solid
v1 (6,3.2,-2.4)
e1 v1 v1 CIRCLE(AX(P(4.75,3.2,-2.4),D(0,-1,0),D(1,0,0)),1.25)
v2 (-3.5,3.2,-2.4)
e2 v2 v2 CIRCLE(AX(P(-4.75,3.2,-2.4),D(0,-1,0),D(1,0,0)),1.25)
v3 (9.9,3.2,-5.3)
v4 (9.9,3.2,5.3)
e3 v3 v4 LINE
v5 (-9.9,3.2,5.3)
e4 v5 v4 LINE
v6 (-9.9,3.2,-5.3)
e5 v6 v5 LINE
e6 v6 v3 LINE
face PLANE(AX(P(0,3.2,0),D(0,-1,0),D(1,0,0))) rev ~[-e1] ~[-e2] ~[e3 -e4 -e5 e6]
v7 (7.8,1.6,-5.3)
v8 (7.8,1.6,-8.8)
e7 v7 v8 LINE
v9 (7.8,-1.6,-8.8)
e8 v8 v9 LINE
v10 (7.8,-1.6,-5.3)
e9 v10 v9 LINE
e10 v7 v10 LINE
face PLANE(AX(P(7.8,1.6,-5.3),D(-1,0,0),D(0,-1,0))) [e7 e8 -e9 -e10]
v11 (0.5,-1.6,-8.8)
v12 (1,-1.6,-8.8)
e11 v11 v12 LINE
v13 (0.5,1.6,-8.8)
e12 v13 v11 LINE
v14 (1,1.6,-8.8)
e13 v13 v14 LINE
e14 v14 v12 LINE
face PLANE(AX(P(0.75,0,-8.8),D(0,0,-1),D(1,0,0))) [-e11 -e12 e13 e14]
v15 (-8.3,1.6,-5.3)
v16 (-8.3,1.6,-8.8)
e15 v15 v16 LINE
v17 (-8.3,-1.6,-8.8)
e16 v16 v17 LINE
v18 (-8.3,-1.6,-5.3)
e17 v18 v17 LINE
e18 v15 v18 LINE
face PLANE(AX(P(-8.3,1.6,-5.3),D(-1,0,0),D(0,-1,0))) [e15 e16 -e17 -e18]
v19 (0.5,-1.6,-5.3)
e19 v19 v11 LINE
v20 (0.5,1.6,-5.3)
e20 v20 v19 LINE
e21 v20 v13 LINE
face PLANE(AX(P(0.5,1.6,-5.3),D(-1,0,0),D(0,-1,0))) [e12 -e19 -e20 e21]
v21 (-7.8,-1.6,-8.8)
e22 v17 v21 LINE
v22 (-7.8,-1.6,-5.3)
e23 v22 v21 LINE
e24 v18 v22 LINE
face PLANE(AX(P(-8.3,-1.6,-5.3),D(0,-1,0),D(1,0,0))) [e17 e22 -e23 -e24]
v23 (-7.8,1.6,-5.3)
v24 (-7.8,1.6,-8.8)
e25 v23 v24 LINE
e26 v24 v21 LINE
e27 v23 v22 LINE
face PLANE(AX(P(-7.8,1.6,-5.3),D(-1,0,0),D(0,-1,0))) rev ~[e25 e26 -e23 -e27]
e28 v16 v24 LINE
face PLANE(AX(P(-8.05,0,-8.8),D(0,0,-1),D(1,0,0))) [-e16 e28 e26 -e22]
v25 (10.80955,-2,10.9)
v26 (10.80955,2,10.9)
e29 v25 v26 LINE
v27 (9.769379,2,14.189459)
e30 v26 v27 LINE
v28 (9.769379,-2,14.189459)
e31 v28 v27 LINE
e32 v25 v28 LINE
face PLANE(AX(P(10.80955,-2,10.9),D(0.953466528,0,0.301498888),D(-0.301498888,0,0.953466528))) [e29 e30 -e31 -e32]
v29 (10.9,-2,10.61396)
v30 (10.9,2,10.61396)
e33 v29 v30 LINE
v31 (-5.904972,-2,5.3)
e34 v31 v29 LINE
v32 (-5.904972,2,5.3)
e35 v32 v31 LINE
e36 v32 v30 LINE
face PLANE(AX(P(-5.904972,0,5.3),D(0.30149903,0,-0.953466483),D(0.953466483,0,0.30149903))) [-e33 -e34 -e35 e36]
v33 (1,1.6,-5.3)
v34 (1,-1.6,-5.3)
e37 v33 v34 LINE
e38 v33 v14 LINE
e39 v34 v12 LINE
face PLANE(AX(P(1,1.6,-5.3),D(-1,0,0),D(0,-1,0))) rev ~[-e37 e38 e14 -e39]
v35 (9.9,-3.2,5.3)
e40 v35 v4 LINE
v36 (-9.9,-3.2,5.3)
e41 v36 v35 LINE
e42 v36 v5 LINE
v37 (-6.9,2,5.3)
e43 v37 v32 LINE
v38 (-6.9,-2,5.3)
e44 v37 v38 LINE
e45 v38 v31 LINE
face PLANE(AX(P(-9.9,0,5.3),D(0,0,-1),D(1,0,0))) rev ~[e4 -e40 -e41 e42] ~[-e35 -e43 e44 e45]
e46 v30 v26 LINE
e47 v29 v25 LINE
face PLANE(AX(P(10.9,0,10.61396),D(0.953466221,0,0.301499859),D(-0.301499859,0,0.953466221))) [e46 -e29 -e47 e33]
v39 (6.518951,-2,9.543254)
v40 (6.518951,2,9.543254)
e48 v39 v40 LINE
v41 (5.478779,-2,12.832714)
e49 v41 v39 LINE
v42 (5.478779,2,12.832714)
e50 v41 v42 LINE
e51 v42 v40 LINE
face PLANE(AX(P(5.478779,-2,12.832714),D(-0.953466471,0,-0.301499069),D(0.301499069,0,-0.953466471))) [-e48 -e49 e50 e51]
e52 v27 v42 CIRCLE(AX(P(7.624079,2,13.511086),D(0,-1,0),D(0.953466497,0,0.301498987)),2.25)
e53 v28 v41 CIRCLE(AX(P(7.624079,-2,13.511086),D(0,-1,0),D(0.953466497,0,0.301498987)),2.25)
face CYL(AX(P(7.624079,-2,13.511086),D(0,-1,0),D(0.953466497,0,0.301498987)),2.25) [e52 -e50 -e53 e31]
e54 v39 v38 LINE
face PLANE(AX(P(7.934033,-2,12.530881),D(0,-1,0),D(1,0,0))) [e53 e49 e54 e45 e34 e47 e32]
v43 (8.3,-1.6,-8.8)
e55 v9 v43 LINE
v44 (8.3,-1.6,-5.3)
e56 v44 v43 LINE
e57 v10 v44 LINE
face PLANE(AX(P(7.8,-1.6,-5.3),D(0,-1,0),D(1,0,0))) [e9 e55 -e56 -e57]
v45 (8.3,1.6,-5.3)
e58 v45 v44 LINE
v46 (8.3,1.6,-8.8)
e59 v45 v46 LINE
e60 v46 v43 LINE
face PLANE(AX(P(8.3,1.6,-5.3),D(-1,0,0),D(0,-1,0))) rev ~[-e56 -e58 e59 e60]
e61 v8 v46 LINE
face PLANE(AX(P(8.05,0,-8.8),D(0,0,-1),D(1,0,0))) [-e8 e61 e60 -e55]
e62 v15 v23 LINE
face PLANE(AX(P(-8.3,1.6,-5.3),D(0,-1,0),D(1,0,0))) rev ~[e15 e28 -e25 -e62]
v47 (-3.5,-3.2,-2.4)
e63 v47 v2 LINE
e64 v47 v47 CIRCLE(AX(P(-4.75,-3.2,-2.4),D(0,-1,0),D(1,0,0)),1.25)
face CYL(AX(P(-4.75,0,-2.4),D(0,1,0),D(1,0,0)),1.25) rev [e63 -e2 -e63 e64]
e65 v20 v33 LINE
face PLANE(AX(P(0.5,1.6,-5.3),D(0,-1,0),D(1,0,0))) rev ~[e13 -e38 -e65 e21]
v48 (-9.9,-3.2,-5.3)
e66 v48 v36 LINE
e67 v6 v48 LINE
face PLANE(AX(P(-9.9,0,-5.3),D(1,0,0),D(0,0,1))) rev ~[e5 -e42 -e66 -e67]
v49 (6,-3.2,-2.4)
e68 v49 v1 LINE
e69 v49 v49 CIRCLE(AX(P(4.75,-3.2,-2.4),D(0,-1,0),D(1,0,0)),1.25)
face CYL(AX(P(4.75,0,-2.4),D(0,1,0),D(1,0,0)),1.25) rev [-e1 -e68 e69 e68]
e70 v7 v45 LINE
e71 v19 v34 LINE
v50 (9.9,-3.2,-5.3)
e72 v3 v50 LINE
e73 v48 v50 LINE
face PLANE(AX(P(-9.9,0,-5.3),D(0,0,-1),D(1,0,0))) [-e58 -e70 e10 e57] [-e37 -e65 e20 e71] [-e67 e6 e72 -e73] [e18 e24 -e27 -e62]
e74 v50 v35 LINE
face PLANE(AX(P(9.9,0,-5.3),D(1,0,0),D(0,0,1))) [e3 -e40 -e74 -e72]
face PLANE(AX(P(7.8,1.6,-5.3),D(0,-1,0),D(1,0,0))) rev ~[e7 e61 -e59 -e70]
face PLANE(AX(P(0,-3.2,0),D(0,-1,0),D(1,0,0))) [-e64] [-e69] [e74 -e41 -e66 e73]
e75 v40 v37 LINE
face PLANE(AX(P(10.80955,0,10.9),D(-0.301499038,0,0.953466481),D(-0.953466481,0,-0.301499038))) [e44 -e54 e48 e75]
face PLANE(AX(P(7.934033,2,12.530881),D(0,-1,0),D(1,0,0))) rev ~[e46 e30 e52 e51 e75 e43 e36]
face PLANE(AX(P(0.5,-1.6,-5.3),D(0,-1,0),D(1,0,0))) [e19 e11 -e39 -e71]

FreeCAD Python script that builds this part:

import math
import FreeCAD as App
import Part
import Sketcher

doc = App.newDocument("Part")
params = doc.addObject("Spreadsheet::Sheet", "Params")
for row, (alias, value) in enumerate([
    ("sketch1_diameter", "2.5 mm"),
    ("sketch1_width", "19.8 mm"),
    ("sketch1_height", "10.6 mm"),
    ("pad1_length", "6.4 mm"),
    ("sketch2_width", "0.5 mm"),
    ("sketch2_height", "3.2 mm"),
    ("pad2_length", "3.5 mm"),
    ("sketch3_length", "0.3 mm"),
    ("pad3_length", "4 mm"),
    ("sketch4_radius", "2.25 mm"),
    ("sketch4_length", "3.449999 mm"),
    ("pad4_length", "4 mm"),
], start=1):
    params.set(f"A{row}", alias)
    params.set(f"B{row}", "=" + value)
    params.setAlias(f"B{row}", alias)

body = doc.addObject("PartDesign::Body", "Body")

# Sketch on XZ plane
sketch1 = body.newObject("Sketcher::SketchObject", "Sketch")
sketch1.AttachmentSupport = (doc.getObject("XZ_Plane"), [""])
sketch1.MapMode = "FlatFace"
sketch1.addGeometry(Part.LineSegment(App.Vector(-9.9, 5.3, 0), App.Vector(-9.9, -5.3, 0)), False)
sketch1.addGeometry(Part.LineSegment(App.Vector(-9.9, -5.3, 0), App.Vector(9.9, -5.3, 0)), False)
sketch1.addGeometry(Part.LineSegment(App.Vector(9.9, -5.3, 0), App.Vector(9.9, 5.3, 0)), False)
sketch1.addGeometry(Part.LineSegment(App.Vector(9.9, 5.3, 0), App.Vector(-9.9, 5.3, 0)), False)
sketch1.addGeometry(Part.Circle(App.Vector(-4.8, -2.4, 0), App.Vector(0, 0, 1), 1.2), False)
sketch1.addGeometry(Part.Circle(App.Vector(4.8, -2.4, 0), App.Vector(0, 0, 1), 1.2), False)
sketch1.addConstraint(Sketcher.Constraint("Coincident", 0, 2, 1, 1))
sketch1.addConstraint(Sketcher.Constraint("Coincident", 1, 2, 2, 1))
sketch1.addConstraint(Sketcher.Constraint("Coincident", 2, 2, 3, 1))
sketch1.addConstraint(Sketcher.Constraint("Coincident", 3, 2, 0, 1))
sketch1.addConstraint(Sketcher.Constraint("Vertical", 0))
sketch1.addConstraint(Sketcher.Constraint("Horizontal", 1))
sketch1.addConstraint(Sketcher.Constraint("Vertical", 2))
sketch1.addConstraint(Sketcher.Constraint("Horizontal", 3))
sketch1.addConstraint(Sketcher.Constraint("Equal", 4, 5))
sketch1.addConstraint(Sketcher.Constraint("Symmetric", 0, 2, 2, 2, -1, 1))
sketch1.addConstraint(Sketcher.Constraint("Symmetric", 4, 3, 5, 3, -2))
sketch1.addConstraint(Sketcher.Constraint("Diameter", 4, 2.5))
sketch1.addConstraint(Sketcher.Constraint("DistanceX", 1, 1, 1, 2, 19.8))
sketch1.addConstraint(Sketcher.Constraint("DistanceY", 0, 2, 0, 1, 10.6))
sketch1.addConstraint(Sketcher.Constraint("DistanceY", 4, 3, -1, 1, 2.4))
sketch1.addConstraint(Sketcher.Constraint("DistanceX", 4, 3, 5, 3, 9.5))
sketch1.setExpression("Constraints[11]", "Params.sketch1_diameter")
sketch1.setExpression("Constraints[12]", "Params.sketch1_width")
sketch1.setExpression("Constraints[13]", "Params.sketch1_height")
pad1 = body.newObject("PartDesign::Pad", "Pad")
pad1.Profile = sketch1
pad1.setExpression("Length", "Params.pad1_length")
pad1.Midplane = True

# Sketch on XY plane
sketch2 = body.newObject("Sketcher::SketchObject", "Sketch001")
sketch2.AttachmentSupport = (doc.getObject("XY_Plane"), [""])
sketch2.MapMode = "FlatFace"
sketch2.AttachmentOffset = App.Placement(App.Vector(0, 0, -5.3), App.Rotation())
sketch2.addGeometry(Part.LineSegment(App.Vector(-8.3, -1.6, 0), App.Vector(-8.3, 1.6, 0)), False)
sketch2.addGeometry(Part.LineSegment(App.Vector(-8.3, 1.6, 0), App.Vector(-7.8, 1.6, 0)), False)
sketch2.addGeometry(Part.LineSegment(App.Vector(-7.8, 1.6, 0), App.Vector(-7.8, -1.6, 0)), False)
sketch2.addGeometry(Part.LineSegment(App.Vector(-7.8, -1.6, 0), App.Vector(-8.3, -1.6, 0)), False)
sketch2.addGeometry(Part.LineSegment(App.Vector(0.5, -1.6, 0), App.Vector(0.5, 1.6, 0)), False)
sketch2.addGeometry(Part.LineSegment(App.Vector(0.5, 1.6, 0), App.Vector(1, 1.6, 0)), False)
sketch2.addGeometry(Part.LineSegment(App.Vector(1, 1.6, 0), App.Vector(1, -1.6, 0)), False)
sketch2.addGeometry(Part.LineSegment(App.Vector(1, -1.6, 0), App.Vector(0.5, -1.6, 0)), False)
sketch2.addGeometry(Part.LineSegment(App.Vector(7.8, -1.6, 0), App.Vector(7.8, 1.6, 0)), False)
sketch2.addGeometry(Part.LineSegment(App.Vector(7.8, 1.6, 0), App.Vector(8.3, 1.6, 0)), False)
sketch2.addGeometry(Part.LineSegment(App.Vector(8.3, 1.6, 0), App.Vector(8.3, -1.6, 0)), False)
sketch2.addGeometry(Part.LineSegment(App.Vector(8.3, -1.6, 0), App.Vector(7.8, -1.6, 0)), False)
sketch2.addConstraint(Sketcher.Constraint("Coincident", 0, 2, 1, 1))
sketch2.addConstraint(Sketcher.Constraint("Coincident", 1, 2, 2, 1))
sketch2.addConstraint(Sketcher.Constraint("Coincident", 2, 2, 3, 1))
sketch2.addConstraint(Sketcher.Constraint("Coincident", 3, 2, 0, 1))
sketch2.addConstraint(Sketcher.Constraint("Coincident", 4, 2, 5, 1))
sketch2.addConstraint(Sketcher.Constraint("Coincident", 5, 2, 6, 1))
sketch2.addConstraint(Sketcher.Constraint("Coincident", 6, 2, 7, 1))
sketch2.addConstraint(Sketcher.Constraint("Coincident", 7, 2, 4, 1))
sketch2.addConstraint(Sketcher.Constraint("Coincident", 8, 2, 9, 1))
sketch2.addConstraint(Sketcher.Constraint("Coincident", 9, 2, 10, 1))
sketch2.addConstraint(Sketcher.Constraint("Coincident", 10, 2, 11, 1))
sketch2.addConstraint(Sketcher.Constraint("Coincident", 11, 2, 8, 1))
sketch2.addConstraint(Sketcher.Constraint("Vertical", 0))
sketch2.addConstraint(Sketcher.Constraint("Horizontal", 1))
sketch2.addConstraint(Sketcher.Constraint("Vertical", 2))
sketch2.addConstraint(Sketcher.Constraint("Horizontal", 3))
sketch2.addConstraint(Sketcher.Constraint("Vertical", 4))
sketch2.addConstraint(Sketcher.Constraint("Horizontal", 5))
sketch2.addConstraint(Sketcher.Constraint("Vertical", 6))
sketch2.addConstraint(Sketcher.Constraint("Horizontal", 7))
sketch2.addConstraint(Sketcher.Constraint("Vertical", 8))
sketch2.addConstraint(Sketcher.Constraint("Horizontal", 9))
sketch2.addConstraint(Sketcher.Constraint("Vertical", 10))
sketch2.addConstraint(Sketcher.Constraint("Horizontal", 11))
sketch2.addConstraint(Sketcher.Constraint("Symmetric", 2, 2, 8, 2, -1, 1))
sketch2.addConstraint(Sketcher.Constraint("Symmetric", 0, 2, 10, 2, -1, 1))
sketch2.addConstraint(Sketcher.Constraint("Horizontal", 1, 2, 4, 2))
sketch2.addConstraint(Sketcher.Constraint("Horizontal", 3, 2, 6, 2))
sketch2.addConstraint(Sketcher.Constraint("Horizontal", 5, 2, 8, 2))
sketch2.addConstraint(Sketcher.Constraint("Equal", 3, 5))
sketch2.addConstraint(Sketcher.Constraint("DistanceX", 1, 1, 1, 2, 0.5))
sketch2.addConstraint(Sketcher.Constraint("DistanceY", 0, 1, 0, 2, 3.2))
sketch2.addConstraint(Sketcher.Constraint("DistanceX", -1, 1, 5, 2, 1.0))
sketch2.addConstraint(Sketcher.Constraint("DistanceX", 0, 2, -1, 1, 8.3))
sketch2.setExpression("Constraints[30]", "Params.sketch2_width")
sketch2.setExpression("Constraints[31]", "Params.sketch2_height")
pad2 = body.newObject("PartDesign::Pad", "Pad001")
pad2.Profile = sketch2
pad2.setExpression("Length", "Params.pad2_length")
pad2.Reversed = True

# Sketch on XZ plane
sketch3 = body.newObject("Sketcher::SketchObject", "Sketch002")
sketch3.AttachmentSupport = (doc.getObject("XZ_Plane"), [""])
sketch3.MapMode = "FlatFace"
sketch3.addGeometry(Part.LineSegment(App.Vector(10.81, 10.9, 0), App.Vector(-6.9, 5.3, 0)), False)
sketch3.addGeometry(Part.LineSegment(App.Vector(-6.9, 5.3, 0), App.Vector(-5.9, 5.3, 0)), False)
sketch3.addGeometry(Part.LineSegment(App.Vector(-5.9, 5.3, 0), App.Vector(10.9, 10.61, 0)), False)
sketch3.addGeometry(Part.LineSegment(App.Vector(10.9, 10.61, 0), App.Vector(10.81, 10.9, 0)), False)
sketch3.addConstraint(Sketcher.Constraint("Coincident", 0, 2, 1, 1))
sketch3.addConstraint(Sketcher.Constraint("Coincident", 1, 2, 2, 1))
sketch3.addConstraint(Sketcher.Constraint("Coincident", 2, 2, 3, 1))
sketch3.addConstraint(Sketcher.Constraint("Coincident", 3, 2, 0, 1))
sketch3.addConstraint(Sketcher.Constraint("Horizontal", 1))
sketch3.addConstraint(Sketcher.Constraint("Parallel", 0, 2))
sketch3.addConstraint(Sketcher.Constraint("Perpendicular", 2, 3))
sketch3.addConstraint(Sketcher.Constraint("Distance", 3, 0.3))
sketch3.addConstraint(Sketcher.Constraint("DistanceX", 0, 2, -1, 1, 6.9))
sketch3.addConstraint(Sketcher.Constraint("DistanceY", -1, 1, 0, 2, 5.3))
sketch3.addConstraint(Sketcher.Constraint("DistanceX", -1, 1, 2, 2, 10.9))
sketch3.addConstraint(Sketcher.Constraint("DistanceY", -1, 1, 3, 2, 10.9))
sketch3.setExpression("Constraints[7]", "Params.sketch3_length")
pad3 = body.newObject("PartDesign::Pad", "Pad002")
pad3.Profile = sketch3
pad3.setExpression("Length", "Params.pad3_length")
pad3.Midplane = True

# Sketch on XZ plane
sketch4 = body.newObject("Sketcher::SketchObject", "Sketch003")
sketch4.AttachmentSupport = (doc.getObject("XZ_Plane"), [""])
sketch4.MapMode = "FlatFace"
sketch4.AttachmentOffset = App.Placement(App.Vector(0, 0, 2), App.Rotation())
sketch4.addGeometry(Part.LineSegment(App.Vector(6.5, 9.5, 0), App.Vector(10.8, 10.9, 0)), False)
sketch4.addGeometry(Part.LineSegment(App.Vector(10.8, 10.9, 0), App.Vector(9.8, 14.2, 0)), False)
sketch4.addGeometry(Part.ArcOfCircle(Part.Circle(App.Vector(7.6, 13.5, 0), App.Vector(0, 0, 1), 2.3), math.radians(18), math.radians(198)), False)
sketch4.addGeometry(Part.LineSegment(App.Vector(5.5, 12.8, 0), App.Vector(6.5, 9.5, 0)), False)
sketch4.addConstraint(Sketcher.Constraint("Coincident", 0, 2, 1, 1))
sketch4.addConstraint(Sketcher.Constraint("Tangent", 1, 2, 2, 1))
sketch4.addConstraint(Sketcher.Constraint("Tangent", 2, 2, 3, 1))
sketch4.addConstraint(Sketcher.Constraint("Coincident", 3, 2, 0, 1))
sketch4.addConstraint(Sketcher.Constraint("Perpendicular", 0, 1))
sketch4.addConstraint(Sketcher.Constraint("Parallel", 1, 3))
sketch4.addConstraint(Sketcher.Constraint("Radius", 2, 2.25))
sketch4.addConstraint(Sketcher.Constraint("DistanceY", -1, 1, 0, 2, 10.9))
sketch4.addConstraint(Sketcher.Constraint("Distance", 1, 3.449999))
sketch4.addConstraint(Sketcher.Constraint("DistanceX", 2, 3, 1, 2, 2.1453))
sketch4.addConstraint(Sketcher.Constraint("DistanceX", -1, 1, 2, 3, 7.624079))
sketch4.setExpression("Constraints[6]", "Params.sketch4_radius")
sketch4.setExpression("Constraints[8]", "Params.sketch4_length")
pad4 = body.newObject("PartDesign::Pad", "Pad003")
pad4.Profile = sketch4
pad4.setExpression("Length", "Params.pad4_length")
pad4.Reversed = True

doc.recompute()
